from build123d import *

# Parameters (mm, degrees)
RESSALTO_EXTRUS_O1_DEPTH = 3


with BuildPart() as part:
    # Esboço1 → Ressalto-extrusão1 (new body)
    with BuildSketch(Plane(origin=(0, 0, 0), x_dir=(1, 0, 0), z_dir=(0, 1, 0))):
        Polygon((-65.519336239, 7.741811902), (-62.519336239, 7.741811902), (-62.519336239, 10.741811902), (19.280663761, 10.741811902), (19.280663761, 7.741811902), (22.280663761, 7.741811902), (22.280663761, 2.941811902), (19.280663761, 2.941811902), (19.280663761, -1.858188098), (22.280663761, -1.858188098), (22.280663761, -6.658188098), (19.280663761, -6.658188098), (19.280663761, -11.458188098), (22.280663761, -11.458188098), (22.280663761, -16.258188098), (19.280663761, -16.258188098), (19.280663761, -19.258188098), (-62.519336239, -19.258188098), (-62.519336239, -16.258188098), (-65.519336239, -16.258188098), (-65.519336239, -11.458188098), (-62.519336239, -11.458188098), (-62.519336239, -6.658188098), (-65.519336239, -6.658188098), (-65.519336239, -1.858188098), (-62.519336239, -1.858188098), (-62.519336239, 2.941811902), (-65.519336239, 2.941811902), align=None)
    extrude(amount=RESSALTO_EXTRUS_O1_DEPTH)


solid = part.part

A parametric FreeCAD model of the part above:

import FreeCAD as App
import Part
import Sketcher

V = App.Vector
Q = App.Units.Quantity


def add_polygon(sketch, points):
    """Adds a closed chain of lines whose ends are joined by coincident constraints."""
    first, n = sketch.GeometryCount, len(points)
    for a, b in zip(points, points[1:] + points[:1]):
        sketch.addGeometry(Part.LineSegment(App.Vector(*a, 0), App.Vector(*b, 0)), False)
    for i in range(n):
        sketch.addConstraint(Sketcher.Constraint("Coincident", first + i, 2, first + (i + 1) % n, 1))

doc = App.newDocument("Part")
body = doc.addObject("PartDesign::Body", "Body")

sketch1 = body.newObject("Sketcher::SketchObject", "Sketch")
sketch1.AttachmentSupport = (doc.getObject("XZ_Plane"), [""])
sketch1.MapMode = "FlatFace"
add_polygon(sketch1, [(-62.5, -7.7), (-65.5, -7.7), (-65.5, -2.9), (-62.5, -2.9), (-62.5, 1.9), (-65.5, 1.9), (-65.5, 6.7), (-62.5, 6.7), (-62.5, 11.5), (-65.5, 11.5), (-65.5, 16.3), (-62.5, 16.3), (-62.5, 19.3), (19.3, 19.3), (19.3, 16.3), (22.3, 16.3), (22.3, 11.5), (19.3, 11.5), (19.3, 6.7), (22.3, 6.7), (22.3, 1.9), (19.3, 1.9), (19.3, -2.9), (22.3, -2.9), (22.3, -7.7), (19.3, -7.7), (19.3, -10.7), (-62.5, -10.7)])
sketch1.addConstraint([
    Sketcher.Constraint("Horizontal", 0),
    Sketcher.Constraint("Vertical", 1),
    Sketcher.Constraint("Horizontal", 2),
    Sketcher.Constraint("Vertical", 3),
    Sketcher.Constraint("Horizontal", 4),
    Sketcher.Constraint("Vertical", 5),
    Sketcher.Constraint("Horizontal", 6),
    Sketcher.Constraint("Vertical", 7),
    Sketcher.Constraint("Horizontal", 8),
    Sketcher.Constraint("Vertical", 9),
    Sketcher.Constraint("Horizontal", 10),
    Sketcher.Constraint("Vertical", 11),
    Sketcher.Constraint("Horizontal", 12),
    Sketcher.Constraint("Vertical", 13),
    Sketcher.Constraint("Horizontal", 14),
    Sketcher.Constraint("Vertical", 15),
    Sketcher.Constraint("Horizontal", 16),
    Sketcher.Constraint("Vertical", 17),
    Sketcher.Constraint("Horizontal", 18),
    Sketcher.Constraint("Vertical", 19),
    Sketcher.Constraint("Horizontal", 20),
    Sketcher.Constraint("Vertical", 21),
    Sketcher.Constraint("Horizontal", 22),
    Sketcher.Constraint("Vertical", 23),
    Sketcher.Constraint("Horizontal", 24),
    Sketcher.Constraint("Vertical", 25),
    Sketcher.Constraint("Horizontal", 26),
    Sketcher.Constraint("Vertical", 27),
    Sketcher.Constraint("Horizontal", 10, 2, 13, 2),
    Sketcher.Constraint("Horizontal", 8, 2, 15, 2),
    Sketcher.Constraint("Horizontal", 6, 2, 17, 2),
    Sketcher.Constraint("Horizontal", 4, 2, 19, 2),
    Sketcher.Constraint("Horizontal", 2, 2, 21, 2),
    Sketcher.Constraint("Horizontal", 0, 2, 23, 2),
    Sketcher.Constraint("Vertical", 1, 2, 4, 2),
    Sketcher.Constraint("Vertical", 3, 2, 6, 2),
    Sketcher.Constraint("Vertical", 5, 2, 8, 2),
    Sketcher.Constraint("Vertical", 7, 2, 10, 2),
    Sketcher.Constraint("Vertical", 13, 2, 16, 2),
    Sketcher.Constraint("Vertical", 15, 2, 18, 2),
    Sketcher.Constraint("Vertical", 17, 2, 20, 2),
    Sketcher.Constraint("Vertical", 19, 2, 22, 2),
    Sketcher.Constraint("Vertical", 21, 2, 24, 2),
    Sketcher.Constraint("Vertical", 11, 2, 26, 2),
    Sketcher.Constraint("Equal", 10, 14),
    Sketcher.Constraint("Equal", 1, 3),
    Sketcher.Constraint("Equal", 3, 5),
    Sketcher.Constraint("Equal", 5, 7),
    Sketcher.Constraint("Equal", 7, 9),
    Sketcher.Constraint("Equal", 24, 11),
    Sketcher.Constraint("Equal", 13, 25),
    Sketcher.Constraint("DistanceX", 0, 2, 0, 1, Q("3 mm")),
    Sketcher.Constraint("DistanceX", 12, 1, 12, 2, Q("81.8 mm")),
    Sketcher.Constraint("DistanceY", 1, 1, 1, 2, Q("4.8 mm")),
    Sketcher.Constraint("DistanceY", 0, 2, -1, 1, Q("7.741812 mm")),
    Sketcher.Constraint("DistanceX", 0, 2, -1, 1, Q("65.519336 mm")),
])
pad1 = body.newObject("PartDesign::Pad", "Pad")
pad1.Profile = sketch1
pad1.Length = 3
pad1.Reversed = True

doc.recompute()
